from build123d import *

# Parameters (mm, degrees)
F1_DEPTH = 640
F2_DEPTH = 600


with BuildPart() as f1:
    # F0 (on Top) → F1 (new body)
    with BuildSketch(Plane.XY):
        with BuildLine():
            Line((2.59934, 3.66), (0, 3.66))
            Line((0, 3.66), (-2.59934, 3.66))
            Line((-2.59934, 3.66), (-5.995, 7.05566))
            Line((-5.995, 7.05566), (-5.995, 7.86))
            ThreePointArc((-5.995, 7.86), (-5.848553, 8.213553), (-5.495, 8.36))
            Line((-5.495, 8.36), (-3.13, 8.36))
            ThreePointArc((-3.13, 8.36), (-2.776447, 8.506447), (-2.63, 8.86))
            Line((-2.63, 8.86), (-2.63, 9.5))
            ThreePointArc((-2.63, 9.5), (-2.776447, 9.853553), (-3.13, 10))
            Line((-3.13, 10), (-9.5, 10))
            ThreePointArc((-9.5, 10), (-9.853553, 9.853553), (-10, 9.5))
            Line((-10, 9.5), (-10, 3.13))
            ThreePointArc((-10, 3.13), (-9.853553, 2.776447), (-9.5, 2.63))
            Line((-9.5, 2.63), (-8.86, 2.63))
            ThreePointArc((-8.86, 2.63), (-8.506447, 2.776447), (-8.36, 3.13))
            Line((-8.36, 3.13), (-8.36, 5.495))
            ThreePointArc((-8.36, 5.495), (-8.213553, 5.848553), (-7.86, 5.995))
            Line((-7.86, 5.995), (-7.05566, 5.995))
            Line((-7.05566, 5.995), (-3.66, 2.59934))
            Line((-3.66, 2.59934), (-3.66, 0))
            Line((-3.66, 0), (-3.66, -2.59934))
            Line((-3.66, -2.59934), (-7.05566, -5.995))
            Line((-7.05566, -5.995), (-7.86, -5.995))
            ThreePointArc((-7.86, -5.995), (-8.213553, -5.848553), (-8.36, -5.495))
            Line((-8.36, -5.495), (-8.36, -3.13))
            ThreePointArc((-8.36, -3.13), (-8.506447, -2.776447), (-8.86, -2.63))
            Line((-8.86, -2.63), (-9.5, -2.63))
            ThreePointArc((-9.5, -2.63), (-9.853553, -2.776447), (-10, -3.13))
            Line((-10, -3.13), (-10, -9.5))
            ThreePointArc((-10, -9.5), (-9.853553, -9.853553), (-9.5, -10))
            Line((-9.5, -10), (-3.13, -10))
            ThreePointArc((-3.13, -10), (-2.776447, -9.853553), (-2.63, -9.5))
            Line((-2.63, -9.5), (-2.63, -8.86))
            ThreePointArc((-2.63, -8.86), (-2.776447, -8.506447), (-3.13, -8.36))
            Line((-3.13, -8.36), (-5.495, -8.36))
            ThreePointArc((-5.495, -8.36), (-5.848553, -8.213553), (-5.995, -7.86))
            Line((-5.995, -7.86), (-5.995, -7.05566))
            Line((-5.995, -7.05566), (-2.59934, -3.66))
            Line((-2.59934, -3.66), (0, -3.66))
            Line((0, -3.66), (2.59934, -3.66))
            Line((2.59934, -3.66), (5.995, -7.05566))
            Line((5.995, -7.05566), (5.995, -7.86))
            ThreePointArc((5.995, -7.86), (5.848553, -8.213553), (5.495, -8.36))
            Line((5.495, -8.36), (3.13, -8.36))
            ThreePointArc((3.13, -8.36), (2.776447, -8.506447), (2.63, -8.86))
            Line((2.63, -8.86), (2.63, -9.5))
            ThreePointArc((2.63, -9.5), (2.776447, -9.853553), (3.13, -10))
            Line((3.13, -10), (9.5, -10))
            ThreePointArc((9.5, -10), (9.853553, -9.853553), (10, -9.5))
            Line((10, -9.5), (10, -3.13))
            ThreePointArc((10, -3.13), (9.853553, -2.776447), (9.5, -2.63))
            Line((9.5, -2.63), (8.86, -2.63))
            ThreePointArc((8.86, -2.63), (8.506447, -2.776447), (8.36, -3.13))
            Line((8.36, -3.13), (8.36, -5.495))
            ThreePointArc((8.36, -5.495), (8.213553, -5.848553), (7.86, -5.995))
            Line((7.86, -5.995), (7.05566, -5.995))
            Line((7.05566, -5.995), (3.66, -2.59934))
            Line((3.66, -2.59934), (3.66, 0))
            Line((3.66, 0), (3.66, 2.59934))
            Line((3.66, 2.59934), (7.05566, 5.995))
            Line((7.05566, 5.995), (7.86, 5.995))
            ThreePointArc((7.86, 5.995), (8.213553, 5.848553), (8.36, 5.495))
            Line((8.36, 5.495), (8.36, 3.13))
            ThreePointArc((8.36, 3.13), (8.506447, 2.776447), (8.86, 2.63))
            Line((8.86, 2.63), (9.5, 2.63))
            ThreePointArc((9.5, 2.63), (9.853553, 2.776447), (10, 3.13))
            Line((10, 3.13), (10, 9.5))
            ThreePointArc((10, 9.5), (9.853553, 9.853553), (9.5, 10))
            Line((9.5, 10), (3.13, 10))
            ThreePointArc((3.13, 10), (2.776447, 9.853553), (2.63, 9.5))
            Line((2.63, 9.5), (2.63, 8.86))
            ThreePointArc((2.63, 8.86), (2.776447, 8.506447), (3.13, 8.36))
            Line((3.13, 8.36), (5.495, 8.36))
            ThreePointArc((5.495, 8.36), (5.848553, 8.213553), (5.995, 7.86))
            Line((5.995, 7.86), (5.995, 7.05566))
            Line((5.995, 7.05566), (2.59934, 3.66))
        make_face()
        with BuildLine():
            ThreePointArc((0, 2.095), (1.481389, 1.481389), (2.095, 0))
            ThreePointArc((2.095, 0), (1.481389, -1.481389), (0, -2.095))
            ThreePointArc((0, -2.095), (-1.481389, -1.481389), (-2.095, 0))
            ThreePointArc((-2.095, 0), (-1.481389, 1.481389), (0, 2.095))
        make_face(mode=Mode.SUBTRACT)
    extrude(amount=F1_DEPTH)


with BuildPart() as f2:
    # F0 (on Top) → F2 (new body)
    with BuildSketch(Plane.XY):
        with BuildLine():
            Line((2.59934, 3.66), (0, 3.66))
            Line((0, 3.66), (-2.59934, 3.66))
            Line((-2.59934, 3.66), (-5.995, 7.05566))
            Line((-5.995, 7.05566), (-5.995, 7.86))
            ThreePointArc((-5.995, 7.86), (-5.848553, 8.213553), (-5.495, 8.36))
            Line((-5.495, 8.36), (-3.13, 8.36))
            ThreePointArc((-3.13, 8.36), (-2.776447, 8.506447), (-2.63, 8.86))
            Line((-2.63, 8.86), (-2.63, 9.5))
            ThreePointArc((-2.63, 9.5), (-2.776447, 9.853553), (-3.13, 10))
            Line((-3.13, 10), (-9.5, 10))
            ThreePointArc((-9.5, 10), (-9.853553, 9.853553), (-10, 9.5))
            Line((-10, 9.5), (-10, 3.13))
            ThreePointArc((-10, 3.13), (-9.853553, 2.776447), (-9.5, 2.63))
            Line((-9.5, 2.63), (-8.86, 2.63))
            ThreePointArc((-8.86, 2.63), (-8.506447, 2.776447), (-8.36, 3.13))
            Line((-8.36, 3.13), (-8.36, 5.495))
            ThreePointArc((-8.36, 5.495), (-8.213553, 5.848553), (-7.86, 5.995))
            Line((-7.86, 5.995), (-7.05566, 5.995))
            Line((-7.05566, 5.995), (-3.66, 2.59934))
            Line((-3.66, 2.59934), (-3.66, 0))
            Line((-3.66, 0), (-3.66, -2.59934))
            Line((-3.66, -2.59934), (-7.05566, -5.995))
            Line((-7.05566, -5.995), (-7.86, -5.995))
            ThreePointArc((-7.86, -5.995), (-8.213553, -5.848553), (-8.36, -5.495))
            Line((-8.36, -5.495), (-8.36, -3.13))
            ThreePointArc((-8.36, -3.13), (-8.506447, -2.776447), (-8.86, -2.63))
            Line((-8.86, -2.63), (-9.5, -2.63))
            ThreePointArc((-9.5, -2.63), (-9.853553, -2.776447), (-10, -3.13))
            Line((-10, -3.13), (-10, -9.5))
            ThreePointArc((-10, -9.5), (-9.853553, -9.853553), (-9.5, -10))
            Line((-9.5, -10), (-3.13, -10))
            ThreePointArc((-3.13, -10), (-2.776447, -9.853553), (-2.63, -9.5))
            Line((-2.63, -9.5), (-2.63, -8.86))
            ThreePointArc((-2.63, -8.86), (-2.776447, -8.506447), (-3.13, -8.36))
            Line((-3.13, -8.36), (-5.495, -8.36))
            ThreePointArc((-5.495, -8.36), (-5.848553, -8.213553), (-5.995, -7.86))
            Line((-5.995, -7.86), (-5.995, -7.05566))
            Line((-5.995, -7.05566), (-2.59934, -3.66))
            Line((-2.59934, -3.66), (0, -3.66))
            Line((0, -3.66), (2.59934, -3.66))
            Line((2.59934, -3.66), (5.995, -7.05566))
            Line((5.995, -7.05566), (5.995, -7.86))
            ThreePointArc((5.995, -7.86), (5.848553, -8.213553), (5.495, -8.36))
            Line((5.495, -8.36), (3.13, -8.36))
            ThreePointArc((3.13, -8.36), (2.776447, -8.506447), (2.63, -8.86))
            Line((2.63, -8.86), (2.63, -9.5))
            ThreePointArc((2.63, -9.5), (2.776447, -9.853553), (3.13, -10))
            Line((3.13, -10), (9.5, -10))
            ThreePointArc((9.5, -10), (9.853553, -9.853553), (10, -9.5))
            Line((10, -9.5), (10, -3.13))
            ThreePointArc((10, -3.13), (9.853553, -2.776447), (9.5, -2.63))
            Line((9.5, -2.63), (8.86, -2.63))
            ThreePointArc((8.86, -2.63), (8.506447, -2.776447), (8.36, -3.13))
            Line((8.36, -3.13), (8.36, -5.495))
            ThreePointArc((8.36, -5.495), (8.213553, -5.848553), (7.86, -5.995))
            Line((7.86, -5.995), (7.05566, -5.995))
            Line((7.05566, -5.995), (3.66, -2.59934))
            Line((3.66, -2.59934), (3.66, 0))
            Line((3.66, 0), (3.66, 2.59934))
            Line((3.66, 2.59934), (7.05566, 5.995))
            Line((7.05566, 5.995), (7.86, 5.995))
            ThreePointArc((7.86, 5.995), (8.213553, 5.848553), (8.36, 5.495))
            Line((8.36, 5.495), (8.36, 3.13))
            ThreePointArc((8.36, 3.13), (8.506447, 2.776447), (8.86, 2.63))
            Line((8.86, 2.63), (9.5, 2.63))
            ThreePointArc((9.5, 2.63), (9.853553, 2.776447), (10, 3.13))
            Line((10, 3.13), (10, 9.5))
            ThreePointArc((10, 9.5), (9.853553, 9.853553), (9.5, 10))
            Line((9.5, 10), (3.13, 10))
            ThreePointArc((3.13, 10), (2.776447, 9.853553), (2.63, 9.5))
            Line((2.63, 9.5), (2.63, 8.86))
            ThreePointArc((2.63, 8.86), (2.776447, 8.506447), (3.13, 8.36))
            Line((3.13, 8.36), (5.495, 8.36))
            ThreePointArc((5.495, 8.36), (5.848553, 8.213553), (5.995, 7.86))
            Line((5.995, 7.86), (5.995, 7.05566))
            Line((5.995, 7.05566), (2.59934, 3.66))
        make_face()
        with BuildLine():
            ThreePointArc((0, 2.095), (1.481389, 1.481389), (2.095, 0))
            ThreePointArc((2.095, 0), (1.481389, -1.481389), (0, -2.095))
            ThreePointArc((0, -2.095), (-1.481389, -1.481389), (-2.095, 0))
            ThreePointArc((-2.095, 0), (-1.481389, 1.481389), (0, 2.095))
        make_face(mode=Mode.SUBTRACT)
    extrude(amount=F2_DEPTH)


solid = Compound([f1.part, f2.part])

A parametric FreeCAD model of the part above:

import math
import FreeCAD as App
import Part
import Sketcher
from FreeCAD import Vector

doc = App.newDocument("Part")
body = doc.addObject("PartDesign::Body", "Body")

# Sketch on XY plane
sketch1 = doc.addObject("Sketcher::SketchObject", "Sketch")
body.addObject(sketch1)
sketch1.AttachmentSupport = (doc.XY_Plane, [""])
sketch1.MapMode = "FlatFace"
sketch1.addGeometry([
    Part.LineSegment(Vector(2.6, 3.7, 0), Vector(-2.6, 3.7, 0)),  # 0
    Part.LineSegment(Vector(-2.6, 3.7, 0), Vector(-6, 7.1, 0)),  # 1
    Part.LineSegment(Vector(-6, 7.1, 0), Vector(-6, 7.9, 0)),  # 2
    Part.ArcOfCircle(Part.Circle(Vector(-5.5, 7.9, 0), Vector(0, 0, 1), 0.5), math.radians(90), math.radians(180)),  # 3
    Part.LineSegment(Vector(-5.5, 8.4, 0), Vector(-3.1, 8.4, 0)),  # 4
    Part.ArcOfCircle(Part.Circle(Vector(-3.1, 8.9, 0), Vector(0, 0, 1), 0.5), math.radians(-90), math.radians(0)),  # 5
    Part.LineSegment(Vector(-2.6, 8.9, 0), Vector(-2.6, 9.5, 0)),  # 6
    Part.ArcOfCircle(Part.Circle(Vector(-3.1, 9.5, 0), Vector(0, 0, 1), 0.5), math.radians(0), math.radians(90)),  # 7
    Part.LineSegment(Vector(-3.1, 10, 0), Vector(-9.5, 10, 0)),  # 8
    Part.ArcOfCircle(Part.Circle(Vector(-9.5, 9.5, 0), Vector(0, 0, 1), 0.5), math.radians(90), math.radians(180)),  # 9
    Part.LineSegment(Vector(-10, 9.5, 0), Vector(-10, 3.1, 0)),  # 10
    Part.ArcOfCircle(Part.Circle(Vector(-9.5, 3.1, 0), Vector(0, 0, 1), 0.5), math.radians(-180), math.radians(-90)),  # 11
    Part.LineSegment(Vector(-9.5, 2.6, 0), Vector(-8.9, 2.6, 0)),  # 12
    Part.ArcOfCircle(Part.Circle(Vector(-8.9, 3.1, 0), Vector(0, 0, 1), 0.5), math.radians(-90), math.radians(0)),  # 13
    Part.LineSegment(Vector(-8.4, 3.1, 0), Vector(-8.4, 5.5, 0)),  # 14
    Part.ArcOfCircle(Part.Circle(Vector(-7.9, 5.5, 0), Vector(0, 0, 1), 0.5), math.radians(90), math.radians(180)),  # 15
    Part.LineSegment(Vector(-7.9, 6, 0), Vector(-7.1, 6, 0)),  # 16
    Part.LineSegment(Vector(-7.1, 6, 0), Vector(-3.7, 2.6, 0)),  # 17
    Part.LineSegment(Vector(-3.7, 2.6, 0), Vector(-3.7, -2.6, 0)),  # 18
    Part.LineSegment(Vector(-3.7, -2.6, 0), Vector(-7.1, -6, 0)),  # 19
    Part.LineSegment(Vector(-7.1, -6, 0), Vector(-7.9, -6, 0)),  # 20
    Part.ArcOfCircle(Part.Circle(Vector(-7.9, -5.5, 0), Vector(0, 0, 1), 0.5), math.radians(-180), math.radians(-90)),  # 21
    Part.LineSegment(Vector(-8.4, -5.5, 0), Vector(-8.4, -3.1, 0)),  # 22
    Part.ArcOfCircle(Part.Circle(Vector(-8.9, -3.1, 0), Vector(0, 0, 1), 0.5), math.radians(0), math.radians(90)),  # 23
    Part.LineSegment(Vector(-8.9, -2.6, 0), Vector(-9.5, -2.6, 0)),  # 24
    Part.ArcOfCircle(Part.Circle(Vector(-9.5, -3.1, 0), Vector(0, 0, 1), 0.5), math.radians(90), math.radians(180)),  # 25
    Part.LineSegment(Vector(-10, -3.1, 0), Vector(-10, -9.5, 0)),  # 26
    Part.ArcOfCircle(Part.Circle(Vector(-9.5, -9.5, 0), Vector(0, 0, 1), 0.5), math.radians(-180), math.radians(-90)),  # 27
    Part.LineSegment(Vector(-9.5, -10, 0), Vector(-3.1, -10, 0)),  # 28
    Part.ArcOfCircle(Part.Circle(Vector(-3.1, -9.5, 0), Vector(0, 0, 1), 0.5), math.radians(-90), math.radians(0)),  # 29
    Part.LineSegment(Vector(-2.6, -9.5, 0), Vector(-2.6, -8.9, 0)),  # 30
    Part.ArcOfCircle(Part.Circle(Vector(-3.1, -8.9, 0), Vector(0, 0, 1), 0.5), math.radians(0), math.radians(90)),  # 31
    Part.LineSegment(Vector(-3.1, -8.4, 0), Vector(-5.5, -8.4, 0)),  # 32
    Part.ArcOfCircle(Part.Circle(Vector(-5.5, -7.9, 0), Vector(0, 0, 1), 0.5), math.radians(-180), math.radians(-90)),  # 33
    Part.LineSegment(Vector(-6, -7.9, 0), Vector(-6, -7.1, 0)),  # 34
    Part.LineSegment(Vector(-6, -7.1, 0), Vector(-2.6, -3.7, 0)),  # 35
    Part.LineSegment(Vector(-2.6, -3.7, 0), Vector(2.6, -3.7, 0)),  # 36
    Part.LineSegment(Vector(2.6, -3.7, 0), Vector(6, -7.1, 0)),  # 37
    Part.LineSegment(Vector(6, -7.1, 0), Vector(6, -7.9, 0)),  # 38
    Part.ArcOfCircle(Part.Circle(Vector(5.5, -7.9, 0), Vector(0, 0, 1), 0.5), math.radians(-90), math.radians(0)),  # 39
    Part.LineSegment(Vector(5.5, -8.4, 0), Vector(3.1, -8.4, 0)),  # 40
    Part.ArcOfCircle(Part.Circle(Vector(3.1, -8.9, 0), Vector(0, 0, 1), 0.5), math.radians(90), math.radians(180)),  # 41
    Part.LineSegment(Vector(2.6, -8.9, 0), Vector(2.6, -9.5, 0)),  # 42
    Part.ArcOfCircle(Part.Circle(Vector(3.1, -9.5, 0), Vector(0, 0, 1), 0.5), math.radians(-180), math.radians(-90)),  # 43
    Part.LineSegment(Vector(3.1, -10, 0), Vector(9.5, -10, 0)),  # 44
    Part.ArcOfCircle(Part.Circle(Vector(9.5, -9.5, 0), Vector(0, 0, 1), 0.5), math.radians(-90), math.radians(0)),  # 45
    Part.LineSegment(Vector(10, -9.5, 0), Vector(10, -3.1, 0)),  # 46
    Part.ArcOfCircle(Part.Circle(Vector(9.5, -3.1, 0), Vector(0, 0, 1), 0.5), math.radians(0), math.radians(90)),  # 47
    Part.LineSegment(Vector(9.5, -2.6, 0), Vector(8.9, -2.6, 0)),  # 48
    Part.ArcOfCircle(Part.Circle(Vector(8.9, -3.1, 0), Vector(0, 0, 1), 0.5), math.radians(90), math.radians(180)),  # 49
    Part.LineSegment(Vector(8.4, -3.1, 0), Vector(8.4, -5.5, 0)),  # 50
    Part.ArcOfCircle(Part.Circle(Vector(7.9, -5.5, 0), Vector(0, 0, 1), 0.5), math.radians(-90), math.radians(0)),  # 51
    Part.LineSegment(Vector(7.9, -6, 0), Vector(7.1, -6, 0)),  # 52
    Part.LineSegment(Vector(7.1, -6, 0), Vector(3.7, -2.6, 0)),  # 53
    Part.LineSegment(Vector(3.7, -2.6, 0), Vector(3.7, 2.6, 0)),  # 54
    Part.LineSegment(Vector(3.7, 2.6, 0), Vector(7.1, 6, 0)),  # 55
    Part.LineSegment(Vector(7.1, 6, 0), Vector(7.9, 6, 0)),  # 56
    Part.ArcOfCircle(Part.Circle(Vector(7.9, 5.5, 0), Vector(0, 0, 1), 0.5), math.radians(0), math.radians(90)),  # 57
    Part.LineSegment(Vector(8.4, 5.5, 0), Vector(8.4, 3.1, 0)),  # 58
    Part.ArcOfCircle(Part.Circle(Vector(8.9, 3.1, 0), Vector(0, 0, 1), 0.5), math.radians(-180), math.radians(-90)),  # 59
    Part.LineSegment(Vector(8.9, 2.6, 0), Vector(9.5, 2.6, 0)),  # 60
    Part.ArcOfCircle(Part.Circle(Vector(9.5, 3.1, 0), Vector(0, 0, 1), 0.5), math.radians(-90), math.radians(0)),  # 61
    Part.LineSegment(Vector(10, 3.1, 0), Vector(10, 9.5, 0)),  # 62
    Part.ArcOfCircle(Part.Circle(Vector(9.5, 9.5, 0), Vector(0, 0, 1), 0.5), math.radians(0), math.radians(90)),  # 63
    Part.LineSegment(Vector(9.5, 10, 0), Vector(3.1, 10, 0)),  # 64
    Part.ArcOfCircle(Part.Circle(Vector(3.1, 9.5, 0), Vector(0, 0, 1), 0.5), math.radians(90), math.radians(180)),  # 65
    Part.LineSegment(Vector(2.6, 9.5, 0), Vector(2.6, 8.9, 0)),  # 66
    Part.ArcOfCircle(Part.Circle(Vector(3.1, 8.9, 0), Vector(0, 0, 1), 0.5), math.radians(-180), math.radians(-90)),  # 67
    Part.LineSegment(Vector(3.1, 8.4, 0), Vector(5.5, 8.4, 0)),  # 68
    Part.ArcOfCircle(Part.Circle(Vector(5.5, 7.9, 0), Vector(0, 0, 1), 0.5), math.radians(0), math.radians(90)),  # 69
    Part.LineSegment(Vector(6, 7.9, 0), Vector(6, 7.1, 0)),  # 70
    Part.LineSegment(Vector(6, 7.1, 0), Vector(2.6, 3.7, 0)),  # 71
    Part.ArcOfCircle(Part.Circle(Vector(0, 0, 0), Vector(0, 0, 1), 2.1), math.radians(90), math.radians(180)),  # 72
    Part.ArcOfCircle(Part.Circle(Vector(0, 0, 0), Vector(0, 0, 1), 2.1), math.radians(0), math.radians(90)),  # 73
    Part.ArcOfCircle(Part.Circle(Vector(0, 0, 0), Vector(0, 0, 1), 2.1), math.radians(-90), math.radians(0)),  # 74
    Part.ArcOfCircle(Part.Circle(Vector(0, 0, 0), Vector(0, 0, 1), 2.1), math.radians(180), math.radians(270)),  # 75
], False)
sketch1.addConstraint([
    Sketcher.Constraint("Coincident", 0, 2, 1, 1),
    Sketcher.Constraint("Coincident", 1, 2, 2, 1),
    Sketcher.Constraint("Coincident", 2, 2, 3, 2),
    Sketcher.Constraint("Coincident", 3, 1, 4, 1),
    Sketcher.Constraint("Coincident", 4, 2, 5, 1),
    Sketcher.Constraint("Coincident", 5, 2, 6, 1),
    Sketcher.Constraint("Coincident", 6, 2, 7, 1),
    Sketcher.Constraint("Coincident", 7, 2, 8, 1),
    Sketcher.Constraint("Coincident", 8, 2, 9, 1),
    Sketcher.Constraint("Coincident", 9, 2, 10, 1),
    Sketcher.Constraint("Coincident", 10, 2, 11, 1),
    Sketcher.Constraint("Coincident", 11, 2, 12, 1),
    Sketcher.Constraint("Coincident", 12, 2, 13, 1),
    Sketcher.Constraint("Coincident", 13, 2, 14, 1),
    Sketcher.Constraint("Coincident", 14, 2, 15, 2),
    Sketcher.Constraint("Coincident", 15, 1, 16, 1),
    Sketcher.Constraint("Coincident", 16, 2, 17, 1),
    Sketcher.Constraint("Coincident", 17, 2, 18, 1),
    Sketcher.Constraint("Coincident", 18, 2, 19, 1),
    Sketcher.Constraint("Coincident", 19, 2, 20, 1),
    Sketcher.Constraint("Coincident", 20, 2, 21, 2),
    Sketcher.Constraint("Coincident", 21, 1, 22, 1),
    Sketcher.Constraint("Coincident", 22, 2, 23, 1),
    Sketcher.Constraint("Coincident", 23, 2, 24, 1),
    Sketcher.Constraint("Coincident", 24, 2, 25, 1),
    Sketcher.Constraint("Coincident", 25, 2, 26, 1),
    Sketcher.Constraint("Coincident", 26, 2, 27, 1),
    Sketcher.Constraint("Coincident", 27, 2, 28, 1),
    Sketcher.Constraint("Coincident", 28, 2, 29, 1),
    Sketcher.Constraint("Coincident", 29, 2, 30, 1),
    Sketcher.Constraint("Coincident", 30, 2, 31, 1),
    Sketcher.Constraint("Coincident", 31, 2, 32, 1),
    Sketcher.Constraint("Coincident", 32, 2, 33, 2),
    Sketcher.Constraint("Coincident", 33, 1, 34, 1),
    Sketcher.Constraint("Coincident", 34, 2, 35, 1),
    Sketcher.Constraint("Coincident", 35, 2, 36, 1),
    Sketcher.Constraint("Coincident", 36, 2, 37, 1),
    Sketcher.Constraint("Coincident", 37, 2, 38, 1),
    Sketcher.Constraint("Coincident", 38, 2, 39, 2),
    Sketcher.Constraint("Coincident", 39, 1, 40, 1),
    Sketcher.Constraint("Coincident", 40, 2, 41, 1),
    Sketcher.Constraint("Coincident", 41, 2, 42, 1),
    Sketcher.Constraint("Coincident", 42, 2, 43, 1),
    Sketcher.Constraint("Coincident", 43, 2, 44, 1),
    Sketcher.Constraint("Coincident", 44, 2, 45, 1),
    Sketcher.Constraint("Coincident", 45, 2, 46, 1),
    Sketcher.Constraint("Coincident", 46, 2, 47, 1),
    Sketcher.Constraint("Coincident", 47, 2, 48, 1),
    Sketcher.Constraint("Coincident", 48, 2, 49, 1),
    Sketcher.Constraint("Coincident", 49, 2, 50, 1),
    Sketcher.Constraint("Coincident", 50, 2, 51, 2),
    Sketcher.Constraint("Coincident", 51, 1, 52, 1),
    Sketcher.Constraint("Coincident", 52, 2, 53, 1),
    Sketcher.Constraint("Coincident", 53, 2, 54, 1),
    Sketcher.Constraint("Coincident", 54, 2, 55, 1),
    Sketcher.Constraint("Coincident", 55, 2, 56, 1),
    Sketcher.Constraint("Coincident", 56, 2, 57, 2),
    Sketcher.Constraint("Coincident", 57, 1, 58, 1),
    Sketcher.Constraint("Coincident", 58, 2, 59, 1),
    Sketcher.Constraint("Coincident", 59, 2, 60, 1),
    Sketcher.Constraint("Coincident", 60, 2, 61, 1),
    Sketcher.Constraint("Coincident", 61, 2, 62, 1),
    Sketcher.Constraint("Coincident", 62, 2, 63, 1),
    Sketcher.Constraint("Coincident", 63, 2, 64, 1),
    Sketcher.Constraint("Coincident", 64, 2, 65, 1),
    Sketcher.Constraint("Coincident", 65, 2, 66, 1),
    Sketcher.Constraint("Coincident", 66, 2, 67, 1),
    Sketcher.Constraint("Coincident", 67, 2, 68, 1),
    Sketcher.Constraint("Coincident", 68, 2, 69, 2),
    Sketcher.Constraint("Coincident", 69, 1, 70, 1),
    Sketcher.Constraint("Coincident", 70, 2, 71, 1),
    Sketcher.Constraint("Coincident", 71, 2, 0, 1),
    Sketcher.Constraint("Tangent", 72, 1, 73, 2),
    Sketcher.Constraint("Tangent", 73, 1, 74, 2),
    Sketcher.Constraint("Tangent", 74, 1, 75, 2),
    Sketcher.Constraint("Tangent", 75, 1, 72, 2),
    Sketcher.Constraint("Horizontal", 0),
    Sketcher.Constraint("Vertical", 2),
    Sketcher.Constraint("Horizontal", 4),
    Sketcher.Constraint("Vertical", 6),
    Sketcher.Constraint("Horizontal", 8),
    Sketcher.Constraint("Vertical", 10),
    Sketcher.Constraint("Horizontal", 12),
    Sketcher.Constraint("Vertical", 14),
    Sketcher.Constraint("Horizontal", 16),
    Sketcher.Constraint("Vertical", 18),
    Sketcher.Constraint("Horizontal", 20),
    Sketcher.Constraint("Vertical", 22),
    Sketcher.Constraint("Horizontal", 24),
    Sketcher.Constraint("Vertical", 26),
    Sketcher.Constraint("Horizontal", 28),
    Sketcher.Constraint("Vertical", 30),
    Sketcher.Constraint("Horizontal", 32),
    Sketcher.Constraint("Vertical", 34),
    Sketcher.Constraint("Horizontal", 36),
    Sketcher.Constraint("Vertical", 38),
    Sketcher.Constraint("Horizontal", 40),
    Sketcher.Constraint("Vertical", 42),
    Sketcher.Constraint("Horizontal", 44),
    Sketcher.Constraint("Vertical", 46),
    Sketcher.Constraint("Horizontal", 48),
    Sketcher.Constraint("Vertical", 50),
    Sketcher.Constraint("Horizontal", 52),
    Sketcher.Constraint("Vertical", 54),
    Sketcher.Constraint("Horizontal", 56),
    Sketcher.Constraint("Vertical", 58),
    Sketcher.Constraint("Horizontal", 60),
    Sketcher.Constraint("Vertical", 62),
    Sketcher.Constraint("Horizontal", 64),
    Sketcher.Constraint("Vertical", 66),
    Sketcher.Constraint("Horizontal", 68),
    Sketcher.Constraint("Vertical", 70),
    Sketcher.Constraint("Coincident", 72, 3, -1, 1),
    Sketcher.Constraint("Equal", 3, 5),
    Sketcher.Constraint("Equal", 5, 7),
    Sketcher.Constraint("Equal", 7, 9),
    Sketcher.Constraint("Equal", 9, 11),
    Sketcher.Constraint("Equal", 11, 13),
    Sketcher.Constraint("Equal", 13, 15),
    Sketcher.Constraint("Equal", 15, 21),
    Sketcher.Constraint("Equal", 21, 23),
    Sketcher.Constraint("Equal", 23, 25),
    Sketcher.Constraint("Equal", 25, 27),
    Sketcher.Constraint("Equal", 27, 29),
    Sketcher.Constraint("Equal", 29, 31),
    Sketcher.Constraint("Equal", 31, 33),
    Sketcher.Constraint("Equal", 33, 39),
    Sketcher.Constraint("Equal", 39, 41),
    Sketcher.Constraint("Equal", 41, 43),
    Sketcher.Constraint("Equal", 43, 45),
    Sketcher.Constraint("Equal", 45, 47),
    Sketcher.Constraint("Equal", 47, 49),
    Sketcher.Constraint("Equal", 49, 51),
    Sketcher.Constraint("Equal", 51, 57),
    Sketcher.Constraint("Equal", 57, 59),
    Sketcher.Constraint("Equal", 59, 61),
    Sketcher.Constraint("Equal", 61, 63),
    Sketcher.Constraint("Equal", 63, 65),
    Sketcher.Constraint("Equal", 65, 67),
    Sketcher.Constraint("Equal", 67, 69),
    Sketcher.Constraint("Equal", 72, 73),
    Sketcher.Constraint("Symmetric", 3, 3, 39, 3, -1, 1),
    Sketcher.Constraint("Symmetric", 7, 3, 43, 3, -1, 1),
    Sketcher.Constraint("Symmetric", 11, 3, 47, 3, -1, 1),
    Sketcher.Constraint("Symmetric", 15, 3, 51, 3, -1, 1),
    Sketcher.Constraint("Symmetric", 21, 3, 57, 3, -1, 1),
    Sketcher.Constraint("Symmetric", 25, 3, 61, 3, -1, 1),
    Sketcher.Constraint("Symmetric", 29, 3, 65, 3, -1, 1),
    Sketcher.Constraint("Symmetric", 33, 3, 69, 3, -1, 1),
    Sketcher.Constraint("Symmetric", 0, 2, 36, 2, -1, 1),
    Sketcher.Constraint("Symmetric", 17, 2, 53, 2, -1, 1),
    Sketcher.Constraint("Symmetric", 33, 3, 39, 3, -2),
    Sketcher.Constraint("Symmetric", 29, 3, 43, 3, -2),
    Sketcher.Constraint("Symmetric", 25, 3, 47, 3, -2),
    Sketcher.Constraint("Symmetric", 21, 3, 51, 3, -2),
    Sketcher.Constraint("PointOnObject", 72, 1, -2),
    Sketcher.Constraint("PointOnObject", 73, 1, -1),
    Sketcher.Constraint("PointOnObject", 74, 1, -2),
    Sketcher.Constraint("PointOnObject", 75, 1, -1),
    Sketcher.Constraint("Parallel", 1, 17),
    Sketcher.Constraint("Perpendicular", 17, 19),
    Sketcher.Constraint("Parallel", 19, 35),
    Sketcher.Constraint("Perpendicular", 35, 37),
    Sketcher.Constraint("Parallel", 37, 53),
    Sketcher.Constraint("Perpendicular", 53, 55),
    Sketcher.Constraint("Parallel", 55, 71),
    Sketcher.Constraint("Horizontal", 69, 3, 2, 2),
    Sketcher.Constraint("Horizontal", 67, 3, 5, 2),
    Sketcher.Constraint("Horizontal", 65, 3, 6, 2),
    Sketcher.Constraint("Horizontal", 6, 2, 9, 2),
    Sketcher.Constraint("Horizontal", 61, 3, 10, 2),
    Sketcher.Constraint("Horizontal", 10, 2, 13, 2),
    Sketcher.Constraint("Horizontal", 57, 3, 14, 2),
    Sketcher.Constraint("Horizontal", 51, 3, 21, 1),
    Sketcher.Constraint("Horizontal", 49, 3, 22, 2),
    Sketcher.Constraint("Horizontal", 22, 2, 25, 2),
    Sketcher.Constraint("Horizontal", 45, 3, 26, 2),
    Sketcher.Constraint("Horizontal", 26, 2, 29, 2),
    Sketcher.Constraint("Horizontal", 41, 3, 30, 2),
    Sketcher.Constraint("Horizontal", 39, 3, 33, 1),
    Sketcher.Constraint("Horizontal", 34, 2, 37, 2),
    Sketcher.Constraint("Horizontal", 33, 1, 38, 2),
    Sketcher.Constraint("Horizontal", 30, 2, 41, 2),
    Sketcher.Constraint("Horizontal", 29, 2, 42, 2),
    Sketcher.Constraint("Horizontal", 42, 2, 45, 2),
    Sketcher.Constraint("Horizontal", 25, 2, 46, 2),
    Sketcher.Constraint("Horizontal", 46, 2, 49, 2),
    Sketcher.Constraint("Horizontal", 21, 1, 50, 2),
    Sketcher.Constraint("Horizontal", 18, 2, 53, 2),
    Sketcher.Constraint("Horizontal", 17, 2, 54, 2),
    Sketcher.Constraint("Horizontal", 14, 2, 57, 1),
    Sketcher.Constraint("Horizontal", 13, 2, 58, 2),
    Sketcher.Constraint("Horizontal", 58, 2, 61, 2),
    Sketcher.Constraint("Horizontal", 9, 2, 62, 2),
    Sketcher.Constraint("Horizontal", 62, 2, 65, 2),
    Sketcher.Constraint("Horizontal", 5, 2, 66, 2),
    Sketcher.Constraint("Horizontal", 2, 2, 69, 1),
    Sketcher.Constraint("Horizontal", 1, 2, 70, 2),
    Sketcher.Constraint("Vertical", 33, 3, 3, 1),
    Sketcher.Constraint("Vertical", 31, 3, 4, 2),
    Sketcher.Constraint("Vertical", 4, 2, 7, 2),
    Sketcher.Constraint("Vertical", 27, 3, 8, 2),
    Sketcher.Constraint("Vertical", 8, 2, 11, 2),
    Sketcher.Constraint("Vertical", 23, 3, 12, 2),
    Sketcher.Constraint("Vertical", 21, 3, 15, 1),
    Sketcher.Constraint("Vertical", 16, 2, 19, 2),
    Sketcher.Constraint("Vertical", 15, 1, 20, 2),
    Sketcher.Constraint("Vertical", 12, 2, 23, 2),
    Sketcher.Constraint("Vertical", 11, 2, 24, 2),
    Sketcher.Constraint("Vertical", 24, 2, 27, 2),
    Sketcher.Constraint("Vertical", 7, 2, 28, 2),
    Sketcher.Constraint("Vertical", 28, 2, 31, 2),
    Sketcher.Constraint("Vertical", 3, 1, 32, 2),
    Sketcher.Constraint("Vertical", 69, 3, 39, 1),
    Sketcher.Constraint("Vertical", 67, 3, 40, 2),
    Sketcher.Constraint("Vertical", 40, 2, 43, 2),
    Sketcher.Constraint("Vertical", 63, 3, 44, 2),
    Sketcher.Constraint("Vertical", 44, 2, 47, 2),
    Sketcher.Constraint("Vertical", 59, 3, 48, 2),
    Sketcher.Constraint("Vertical", 57, 3, 51, 1),
    Sketcher.Constraint("Vertical", 51, 1, 56, 2),
    Sketcher.Constraint("Vertical", 48, 2, 59, 2),
    Sketcher.Constraint("Vertical", 47, 2, 60, 2),
    Sketcher.Constraint("Vertical", 60, 2, 63, 2),
    Sketcher.Constraint("Vertical", 43, 2, 64, 2),
    Sketcher.Constraint("Vertical", 64, 2, 67, 2),
    Sketcher.Constraint("Vertical", 39, 1, 68, 2),
    Sketcher.Constraint("Equal", 56, 2),
    Sketcher.Constraint("Equal", 60, 6),
    Sketcher.Constraint("Equal", 64, 10),
    Sketcher.Constraint("Equal", 68, 14),
    Sketcher.Constraint("Equal", 36, 18),
    Sketcher.Constraint("Equal", 1, 17),
    Sketcher.Constraint("Radius", 3, 0.500001),
    Sketcher.Constraint("DistanceY", -1, 1, 7, 2, 10.0),
    Sketcher.Constraint("Radius", 72, 2.094999),
    Sketcher.Constraint("DistanceX", 8, 2, 8, 1, 6.37),
    Sketcher.Constraint("DistanceX", 12, 1, 12, 2, 0.64),
    Sketcher.Constraint("DistanceX", 4, 1, 4, 2, 2.365),
    Sketcher.Constraint("DistanceY", -1, 1, 0, 2, 3.66),
    Sketcher.Constraint("DistanceX", 0, 2, 0, 1, 5.19868),
])
pad1 = doc.addObject("PartDesign::Pad", "Pad")
body.addObject(pad1)
pad1.Profile = sketch1
pad1.Length = 640
body2 = doc.addObject("PartDesign::Body", "Body001")

# Sketch on XY plane
sketch2 = doc.addObject("Sketcher::SketchObject", "Sketch001")
body2.addObject(sketch2)
sketch2.AttachmentSupport = (doc.getObject("XY_Plane001"), [""])
sketch2.MapMode = "FlatFace"
sketch2.addGeometry([
    Part.LineSegment(Vector(2.6, 3.7, 0), Vector(-2.6, 3.7, 0)),  # 0
    Part.LineSegment(Vector(-2.6, 3.7, 0), Vector(-6, 7.1, 0)),  # 1
    Part.LineSegment(Vector(-6, 7.1, 0), Vector(-6, 7.9, 0)),  # 2
    Part.ArcOfCircle(Part.Circle(Vector(-5.5, 7.9, 0), Vector(0, 0, 1), 0.5), math.radians(90), math.radians(180)),  # 3
    Part.LineSegment(Vector(-5.5, 8.4, 0), Vector(-3.1, 8.4, 0)),  # 4
    Part.ArcOfCircle(Part.Circle(Vector(-3.1, 8.9, 0), Vector(0, 0, 1), 0.5), math.radians(-90), math.radians(0)),  # 5
    Part.LineSegment(Vector(-2.6, 8.9, 0), Vector(-2.6, 9.5, 0)),  # 6
    Part.ArcOfCircle(Part.Circle(Vector(-3.1, 9.5, 0), Vector(0, 0, 1), 0.5), math.radians(0), math.radians(90)),  # 7
    Part.LineSegment(Vector(-3.1, 10, 0), Vector(-9.5, 10, 0)),  # 8
    Part.ArcOfCircle(Part.Circle(Vector(-9.5, 9.5, 0), Vector(0, 0, 1), 0.5), math.radians(90), math.radians(180)),  # 9
    Part.LineSegment(Vector(-10, 9.5, 0), Vector(-10, 3.1, 0)),  # 10
    Part.ArcOfCircle(Part.Circle(Vector(-9.5, 3.1, 0), Vector(0, 0, 1), 0.5), math.radians(-180), math.radians(-90)),  # 11
    Part.LineSegment(Vector(-9.5, 2.6, 0), Vector(-8.9, 2.6, 0)),  # 12
    Part.ArcOfCircle(Part.Circle(Vector(-8.9, 3.1, 0), Vector(0, 0, 1), 0.5), math.radians(-90), math.radians(0)),  # 13
    Part.LineSegment(Vector(-8.4, 3.1, 0), Vector(-8.4, 5.5, 0)),  # 14
    Part.ArcOfCircle(Part.Circle(Vector(-7.9, 5.5, 0), Vector(0, 0, 1), 0.5), math.radians(90), math.radians(180)),  # 15
    Part.LineSegment(Vector(-7.9, 6, 0), Vector(-7.1, 6, 0)),  # 16
    Part.LineSegment(Vector(-7.1, 6, 0), Vector(-3.7, 2.6, 0)),  # 17
    Part.LineSegment(Vector(-3.7, 2.6, 0), Vector(-3.7, -2.6, 0)),  # 18
    Part.LineSegment(Vector(-3.7, -2.6, 0), Vector(-7.1, -6, 0)),  # 19
    Part.LineSegment(Vector(-7.1, -6, 0), Vector(-7.9, -6, 0)),  # 20
    Part.ArcOfCircle(Part.Circle(Vector(-7.9, -5.5, 0), Vector(0, 0, 1), 0.5), math.radians(-180), math.radians(-90)),  # 21
    Part.LineSegment(Vector(-8.4, -5.5, 0), Vector(-8.4, -3.1, 0)),  # 22
    Part.ArcOfCircle(Part.Circle(Vector(-8.9, -3.1, 0), Vector(0, 0, 1), 0.5), math.radians(0), math.radians(90)),  # 23
    Part.LineSegment(Vector(-8.9, -2.6, 0), Vector(-9.5, -2.6, 0)),  # 24
    Part.ArcOfCircle(Part.Circle(Vector(-9.5, -3.1, 0), Vector(0, 0, 1), 0.5), math.radians(90), math.radians(180)),  # 25
    Part.LineSegment(Vector(-10, -3.1, 0), Vector(-10, -9.5, 0)),  # 26
    Part.ArcOfCircle(Part.Circle(Vector(-9.5, -9.5, 0), Vector(0, 0, 1), 0.5), math.radians(-180), math.radians(-90)),  # 27
    Part.LineSegment(Vector(-9.5, -10, 0), Vector(-3.1, -10, 0)),  # 28
    Part.ArcOfCircle(Part.Circle(Vector(-3.1, -9.5, 0), Vector(0, 0, 1), 0.5), math.radians(-90), math.radians(0)),  # 29
    Part.LineSegment(Vector(-2.6, -9.5, 0), Vector(-2.6, -8.9, 0)),  # 30
    Part.ArcOfCircle(Part.Circle(Vector(-3.1, -8.9, 0), Vector(0, 0, 1), 0.5), math.radians(0), math.radians(90)),  # 31
    Part.LineSegment(Vector(-3.1, -8.4, 0), Vector(-5.5, -8.4, 0)),  # 32
    Part.ArcOfCircle(Part.Circle(Vector(-5.5, -7.9, 0), Vector(0, 0, 1), 0.5), math.radians(-180), math.radians(-90)),  # 33
    Part.LineSegment(Vector(-6, -7.9, 0), Vector(-6, -7.1, 0)),  # 34
    Part.LineSegment(Vector(-6, -7.1, 0), Vector(-2.6, -3.7, 0)),  # 35
    Part.LineSegment(Vector(-2.6, -3.7, 0), Vector(2.6, -3.7, 0)),  # 36
    Part.LineSegment(Vector(2.6, -3.7, 0), Vector(6, -7.1, 0)),  # 37
    Part.LineSegment(Vector(6, -7.1, 0), Vector(6, -7.9, 0)),  # 38
    Part.ArcOfCircle(Part.Circle(Vector(5.5, -7.9, 0), Vector(0, 0, 1), 0.5), math.radians(-90), math.radians(0)),  # 39
    Part.LineSegment(Vector(5.5, -8.4, 0), Vector(3.1, -8.4, 0)),  # 40
    Part.ArcOfCircle(Part.Circle(Vector(3.1, -8.9, 0), Vector(0, 0, 1), 0.5), math.radians(90), math.radians(180)),  # 41
    Part.LineSegment(Vector(2.6, -8.9, 0), Vector(2.6, -9.5, 0)),  # 42
    Part.ArcOfCircle(Part.Circle(Vector(3.1, -9.5, 0), Vector(0, 0, 1), 0.5), math.radians(-180), math.radians(-90)),  # 43
    Part.LineSegment(Vector(3.1, -10, 0), Vector(9.5, -10, 0)),  # 44
    Part.ArcOfCircle(Part.Circle(Vector(9.5, -9.5, 0), Vector(0, 0, 1), 0.5), math.radians(-90), math.radians(0)),  # 45
    Part.LineSegment(Vector(10, -9.5, 0), Vector(10, -3.1, 0)),  # 46
    Part.ArcOfCircle(Part.Circle(Vector(9.5, -3.1, 0), Vector(0, 0, 1), 0.5), math.radians(0), math.radians(90)),  # 47
    Part.LineSegment(Vector(9.5, -2.6, 0), Vector(8.9, -2.6, 0)),  # 48
    Part.ArcOfCircle(Part.Circle(Vector(8.9, -3.1, 0), Vector(0, 0, 1), 0.5), math.radians(90), math.radians(180)),  # 49
    Part.LineSegment(Vector(8.4, -3.1, 0), Vector(8.4, -5.5, 0)),  # 50
    Part.ArcOfCircle(Part.Circle(Vector(7.9, -5.5, 0), Vector(0, 0, 1), 0.5), math.radians(-90), math.radians(0)),  # 51
    Part.LineSegment(Vector(7.9, -6, 0), Vector(7.1, -6, 0)),  # 52
    Part.LineSegment(Vector(7.1, -6, 0), Vector(3.7, -2.6, 0)),  # 53
    Part.LineSegment(Vector(3.7, -2.6, 0), Vector(3.7, 2.6, 0)),  # 54
    Part.LineSegment(Vector(3.7, 2.6, 0), Vector(7.1, 6, 0)),  # 55
    Part.LineSegment(Vector(7.1, 6, 0), Vector(7.9, 6, 0)),  # 56
    Part.ArcOfCircle(Part.Circle(Vector(7.9, 5.5, 0), Vector(0, 0, 1), 0.5), math.radians(0), math.radians(90)),  # 57
    Part.LineSegment(Vector(8.4, 5.5, 0), Vector(8.4, 3.1, 0)),  # 58
    Part.ArcOfCircle(Part.Circle(Vector(8.9, 3.1, 0), Vector(0, 0, 1), 0.5), math.radians(-180), math.radians(-90)),  # 59
    Part.LineSegment(Vector(8.9, 2.6, 0), Vector(9.5, 2.6, 0)),  # 60
    Part.ArcOfCircle(Part.Circle(Vector(9.5, 3.1, 0), Vector(0, 0, 1), 0.5), math.radians(-90), math.radians(0)),  # 61
    Part.LineSegment(Vector(10, 3.1, 0), Vector(10, 9.5, 0)),  # 62
    Part.ArcOfCircle(Part.Circle(Vector(9.5, 9.5, 0), Vector(0, 0, 1), 0.5), math.radians(0), math.radians(90)),  # 63
    Part.LineSegment(Vector(9.5, 10, 0), Vector(3.1, 10, 0)),  # 64
    Part.ArcOfCircle(Part.Circle(Vector(3.1, 9.5, 0), Vector(0, 0, 1), 0.5), math.radians(90), math.radians(180)),  # 65
    Part.LineSegment(Vector(2.6, 9.5, 0), Vector(2.6, 8.9, 0)),  # 66
    Part.ArcOfCircle(Part.Circle(Vector(3.1, 8.9, 0), Vector(0, 0, 1), 0.5), math.radians(-180), math.radians(-90)),  # 67
    Part.LineSegment(Vector(3.1, 8.4, 0), Vector(5.5, 8.4, 0)),  # 68
    Part.ArcOfCircle(Part.Circle(Vector(5.5, 7.9, 0), Vector(0, 0, 1), 0.5), math.radians(0), math.radians(90)),  # 69
    Part.LineSegment(Vector(6, 7.9, 0), Vector(6, 7.1, 0)),  # 70
    Part.LineSegment(Vector(6, 7.1, 0), Vector(2.6, 3.7, 0)),  # 71
    Part.ArcOfCircle(Part.Circle(Vector(0, 0, 0), Vector(0, 0, 1), 2.1), math.radians(90), math.radians(180)),  # 72
    Part.ArcOfCircle(Part.Circle(Vector(0, 0, 0), Vector(0, 0, 1), 2.1), math.radians(0), math.radians(90)),  # 73
    Part.ArcOfCircle(Part.Circle(Vector(0, 0, 0), Vector(0, 0, 1), 2.1), math.radians(-90), math.radians(0)),  # 74
    Part.ArcOfCircle(Part.Circle(Vector(0, 0, 0), Vector(0, 0, 1), 2.1), math.radians(180), math.radians(270)),  # 75
], False)
sketch2.addConstraint([
    Sketcher.Constraint("Coincident", 0, 2, 1, 1),
    Sketcher.Constraint("Coincident", 1, 2, 2, 1),
    Sketcher.Constraint("Coincident", 2, 2, 3, 2),
    Sketcher.Constraint("Coincident", 3, 1, 4, 1),
    Sketcher.Constraint("Coincident", 4, 2, 5, 1),
    Sketcher.Constraint("Coincident", 5, 2, 6, 1),
    Sketcher.Constraint("Coincident", 6, 2, 7, 1),
    Sketcher.Constraint("Coincident", 7, 2, 8, 1),
    Sketcher.Constraint("Coincident", 8, 2, 9, 1),
    Sketcher.Constraint("Coincident", 9, 2, 10, 1),
    Sketcher.Constraint("Coincident", 10, 2, 11, 1),
    Sketcher.Constraint("Coincident", 11, 2, 12, 1),
    Sketcher.Constraint("Coincident", 12, 2, 13, 1),
    Sketcher.Constraint("Coincident", 13, 2, 14, 1),
    Sketcher.Constraint("Coincident", 14, 2, 15, 2),
    Sketcher.Constraint("Coincident", 15, 1, 16, 1),
    Sketcher.Constraint("Coincident", 16, 2, 17, 1),
    Sketcher.Constraint("Coincident", 17, 2, 18, 1),
    Sketcher.Constraint("Coincident", 18, 2, 19, 1),
    Sketcher.Constraint("Coincident", 19, 2, 20, 1),
    Sketcher.Constraint("Coincident", 20, 2, 21, 2),
    Sketcher.Constraint("Coincident", 21, 1, 22, 1),
    Sketcher.Constraint("Coincident", 22, 2, 23, 1),
    Sketcher.Constraint("Coincident", 23, 2, 24, 1),
    Sketcher.Constraint("Coincident", 24, 2, 25, 1),
    Sketcher.Constraint("Coincident", 25, 2, 26, 1),
    Sketcher.Constraint("Coincident", 26, 2, 27, 1),
    Sketcher.Constraint("Coincident", 27, 2, 28, 1),
    Sketcher.Constraint("Coincident", 28, 2, 29, 1),
    Sketcher.Constraint("Coincident", 29, 2, 30, 1),
    Sketcher.Constraint("Coincident", 30, 2, 31, 1),
    Sketcher.Constraint("Coincident", 31, 2, 32, 1),
    Sketcher.Constraint("Coincident", 32, 2, 33, 2),
    Sketcher.Constraint("Coincident", 33, 1, 34, 1),
    Sketcher.Constraint("Coincident", 34, 2, 35, 1),
    Sketcher.Constraint("Coincident", 35, 2, 36, 1),
    Sketcher.Constraint("Coincident", 36, 2, 37, 1),
    Sketcher.Constraint("Coincident", 37, 2, 38, 1),
    Sketcher.Constraint("Coincident", 38, 2, 39, 2),
    Sketcher.Constraint("Coincident", 39, 1, 40, 1),
    Sketcher.Constraint("Coincident", 40, 2, 41, 1),
    Sketcher.Constraint("Coincident", 41, 2, 42, 1),
    Sketcher.Constraint("Coincident", 42, 2, 43, 1),
    Sketcher.Constraint("Coincident", 43, 2, 44, 1),
    Sketcher.Constraint("Coincident", 44, 2, 45, 1),
    Sketcher.Constraint("Coincident", 45, 2, 46, 1),
    Sketcher.Constraint("Coincident", 46, 2, 47, 1),
    Sketcher.Constraint("Coincident", 47, 2, 48, 1),
    Sketcher.Constraint("Coincident", 48, 2, 49, 1),
    Sketcher.Constraint("Coincident", 49, 2, 50, 1),
    Sketcher.Constraint("Coincident", 50, 2, 51, 2),
    Sketcher.Constraint("Coincident", 51, 1, 52, 1),
    Sketcher.Constraint("Coincident", 52, 2, 53, 1),
    Sketcher.Constraint("Coincident", 53, 2, 54, 1),
    Sketcher.Constraint("Coincident", 54, 2, 55, 1),
    Sketcher.Constraint("Coincident", 55, 2, 56, 1),
    Sketcher.Constraint("Coincident", 56, 2, 57, 2),
    Sketcher.Constraint("Coincident", 57, 1, 58, 1),
    Sketcher.Constraint("Coincident", 58, 2, 59, 1),
    Sketcher.Constraint("Coincident", 59, 2, 60, 1),
    Sketcher.Constraint("Coincident", 60, 2, 61, 1),
    Sketcher.Constraint("Coincident", 61, 2, 62, 1),
    Sketcher.Constraint("Coincident", 62, 2, 63, 1),
    Sketcher.Constraint("Coincident", 63, 2, 64, 1),
    Sketcher.Constraint("Coincident", 64, 2, 65, 1),
    Sketcher.Constraint("Coincident", 65, 2, 66, 1),
    Sketcher.Constraint("Coincident", 66, 2, 67, 1),
    Sketcher.Constraint("Coincident", 67, 2, 68, 1),
    Sketcher.Constraint("Coincident", 68, 2, 69, 2),
    Sketcher.Constraint("Coincident", 69, 1, 70, 1),
    Sketcher.Constraint("Coincident", 70, 2, 71, 1),
    Sketcher.Constraint("Coincident", 71, 2, 0, 1),
    Sketcher.Constraint("Tangent", 72, 1, 73, 2),
    Sketcher.Constraint("Tangent", 73, 1, 74, 2),
    Sketcher.Constraint("Tangent", 74, 1, 75, 2),
    Sketcher.Constraint("Tangent", 75, 1, 72, 2),
    Sketcher.Constraint("Horizontal", 0),
    Sketcher.Constraint("Vertical", 2),
    Sketcher.Constraint("Horizontal", 4),
    Sketcher.Constraint("Vertical", 6),
    Sketcher.Constraint("Horizontal", 8),
    Sketcher.Constraint("Vertical", 10),
    Sketcher.Constraint("Horizontal", 12),
    Sketcher.Constraint("Vertical", 14),
    Sketcher.Constraint("Horizontal", 16),
    Sketcher.Constraint("Vertical", 18),
    Sketcher.Constraint("Horizontal", 20),
    Sketcher.Constraint("Vertical", 22),
    Sketcher.Constraint("Horizontal", 24),
    Sketcher.Constraint("Vertical", 26),
    Sketcher.Constraint("Horizontal", 28),
    Sketcher.Constraint("Vertical", 30),
    Sketcher.Constraint("Horizontal", 32),
    Sketcher.Constraint("Vertical", 34),
    Sketcher.Constraint("Horizontal", 36),
    Sketcher.Constraint("Vertical", 38),
    Sketcher.Constraint("Horizontal", 40),
    Sketcher.Constraint("Vertical", 42),
    Sketcher.Constraint("Horizontal", 44),
    Sketcher.Constraint("Vertical", 46),
    Sketcher.Constraint("Horizontal", 48),
    Sketcher.Constraint("Vertical", 50),
    Sketcher.Constraint("Horizontal", 52),
    Sketcher.Constraint("Vertical", 54),
    Sketcher.Constraint("Horizontal", 56),
    Sketcher.Constraint("Vertical", 58),
    Sketcher.Constraint("Horizontal", 60),
    Sketcher.Constraint("Vertical", 62),
    Sketcher.Constraint("Horizontal", 64),
    Sketcher.Constraint("Vertical", 66),
    Sketcher.Constraint("Horizontal", 68),
    Sketcher.Constraint("Vertical", 70),
    Sketcher.Constraint("Coincident", 72, 3, -1, 1),
    Sketcher.Constraint("Equal", 3, 5),
    Sketcher.Constraint("Equal", 5, 7),
    Sketcher.Constraint("Equal", 7, 9),
    Sketcher.Constraint("Equal", 9, 11),
    Sketcher.Constraint("Equal", 11, 13),
    Sketcher.Constraint("Equal", 13, 15),
    Sketcher.Constraint("Equal", 15, 21),
    Sketcher.Constraint("Equal", 21, 23),
    Sketcher.Constraint("Equal", 23, 25),
    Sketcher.Constraint("Equal", 25, 27),
    Sketcher.Constraint("Equal", 27, 29),
    Sketcher.Constraint("Equal", 29, 31),
    Sketcher.Constraint("Equal", 31, 33),
    Sketcher.Constraint("Equal", 33, 39),
    Sketcher.Constraint("Equal", 39, 41),
    Sketcher.Constraint("Equal", 41, 43),
    Sketcher.Constraint("Equal", 43, 45),
    Sketcher.Constraint("Equal", 45, 47),
    Sketcher.Constraint("Equal", 47, 49),
    Sketcher.Constraint("Equal", 49, 51),
    Sketcher.Constraint("Equal", 51, 57),
    Sketcher.Constraint("Equal", 57, 59),
    Sketcher.Constraint("Equal", 59, 61),
    Sketcher.Constraint("Equal", 61, 63),
    Sketcher.Constraint("Equal", 63, 65),
    Sketcher.Constraint("Equal", 65, 67),
    Sketcher.Constraint("Equal", 67, 69),
    Sketcher.Constraint("Equal", 72, 73),
    Sketcher.Constraint("Symmetric", 3, 3, 39, 3, -1, 1),
    Sketcher.Constraint("Symmetric", 7, 3, 43, 3, -1, 1),
    Sketcher.Constraint("Symmetric", 11, 3, 47, 3, -1, 1),
    Sketcher.Constraint("Symmetric", 15, 3, 51, 3, -1, 1),
    Sketcher.Constraint("Symmetric", 21, 3, 57, 3, -1, 1),
    Sketcher.Constraint("Symmetric", 25, 3, 61, 3, -1, 1),
    Sketcher.Constraint("Symmetric", 29, 3, 65, 3, -1, 1),
    Sketcher.Constraint("Symmetric", 33, 3, 69, 3, -1, 1),
    Sketcher.Constraint("Symmetric", 0, 2, 36, 2, -1, 1),
    Sketcher.Constraint("Symmetric", 17, 2, 53, 2, -1, 1),
    Sketcher.Constraint("Symmetric", 33, 3, 39, 3, -2),
    Sketcher.Constraint("Symmetric", 29, 3, 43, 3, -2),
    Sketcher.Constraint("Symmetric", 25, 3, 47, 3, -2),
    Sketcher.Constraint("Symmetric", 21, 3, 51, 3, -2),
    Sketcher.Constraint("PointOnObject", 72, 1, -2),
    Sketcher.Constraint("PointOnObject", 73, 1, -1),
    Sketcher.Constraint("PointOnObject", 74, 1, -2),
    Sketcher.Constraint("PointOnObject", 75, 1, -1),
    Sketcher.Constraint("Parallel", 1, 17),
    Sketcher.Constraint("Perpendicular", 17, 19),
    Sketcher.Constraint("Parallel", 19, 35),
    Sketcher.Constraint("Perpendicular", 35, 37),
    Sketcher.Constraint("Parallel", 37, 53),
    Sketcher.Constraint("Perpendicular", 53, 55),
    Sketcher.Constraint("Parallel", 55, 71),
    Sketcher.Constraint("Horizontal", 69, 3, 2, 2),
    Sketcher.Constraint("Horizontal", 67, 3, 5, 2),
    Sketcher.Constraint("Horizontal", 65, 3, 6, 2),
    Sketcher.Constraint("Horizontal", 6, 2, 9, 2),
    Sketcher.Constraint("Horizontal", 61, 3, 10, 2),
    Sketcher.Constraint("Horizontal", 10, 2, 13, 2),
    Sketcher.Constraint("Horizontal", 57, 3, 14, 2),
    Sketcher.Constraint("Horizontal", 51, 3, 21, 1),
    Sketcher.Constraint("Horizontal", 49, 3, 22, 2),
    Sketcher.Constraint("Horizontal", 22, 2, 25, 2),
    Sketcher.Constraint("Horizontal", 45, 3, 26, 2),
    Sketcher.Constraint("Horizontal", 26, 2, 29, 2),
    Sketcher.Constraint("Horizontal", 41, 3, 30, 2),
    Sketcher.Constraint("Horizontal", 39, 3, 33, 1),
    Sketcher.Constraint("Horizontal", 34, 2, 37, 2),
    Sketcher.Constraint("Horizontal", 33, 1, 38, 2),
    Sketcher.Constraint("Horizontal", 30, 2, 41, 2),
    Sketcher.Constraint("Horizontal", 29, 2, 42, 2),
    Sketcher.Constraint("Horizontal", 42, 2, 45, 2),
    Sketcher.Constraint("Horizontal", 25, 2, 46, 2),
    Sketcher.Constraint("Horizontal", 46, 2, 49, 2),
    Sketcher.Constraint("Horizontal", 21, 1, 50, 2),
    Sketcher.Constraint("Horizontal", 18, 2, 53, 2),
    Sketcher.Constraint("Horizontal", 17, 2, 54, 2),
    Sketcher.Constraint("Horizontal", 14, 2, 57, 1),
    Sketcher.Constraint("Horizontal", 13, 2, 58, 2),
    Sketcher.Constraint("Horizontal", 58, 2, 61, 2),
    Sketcher.Constraint("Horizontal", 9, 2, 62, 2),
    Sketcher.Constraint("Horizontal", 62, 2, 65, 2),
    Sketcher.Constraint("Horizontal", 5, 2, 66, 2),
    Sketcher.Constraint("Horizontal", 2, 2, 69, 1),
    Sketcher.Constraint("Horizontal", 1, 2, 70, 2),
    Sketcher.Constraint("Vertical", 33, 3, 3, 1),
    Sketcher.Constraint("Vertical", 31, 3, 4, 2),
    Sketcher.Constraint("Vertical", 4, 2, 7, 2),
    Sketcher.Constraint("Vertical", 27, 3, 8, 2),
    Sketcher.Constraint("Vertical", 8, 2, 11, 2),
    Sketcher.Constraint("Vertical", 23, 3, 12, 2),
    Sketcher.Constraint("Vertical", 21, 3, 15, 1),
    Sketcher.Constraint("Vertical", 16, 2, 19, 2),
    Sketcher.Constraint("Vertical", 15, 1, 20, 2),
    Sketcher.Constraint("Vertical", 12, 2, 23, 2),
    Sketcher.Constraint("Vertical", 11, 2, 24, 2),
    Sketcher.Constraint("Vertical", 24, 2, 27, 2),
    Sketcher.Constraint("Vertical", 7, 2, 28, 2),
    Sketcher.Constraint("Vertical", 28, 2, 31, 2),
    Sketcher.Constraint("Vertical", 3, 1, 32, 2),
    Sketcher.Constraint("Vertical", 69, 3, 39, 1),
    Sketcher.Constraint("Vertical", 67, 3, 40, 2),
    Sketcher.Constraint("Vertical", 40, 2, 43, 2),
    Sketcher.Constraint("Vertical", 63, 3, 44, 2),
    Sketcher.Constraint("Vertical", 44, 2, 47, 2),
    Sketcher.Constraint("Vertical", 59, 3, 48, 2),
    Sketcher.Constraint("Vertical", 57, 3, 51, 1),
    Sketcher.Constraint("Vertical", 51, 1, 56, 2),
    Sketcher.Constraint("Vertical", 48, 2, 59, 2),
    Sketcher.Constraint("Vertical", 47, 2, 60, 2),
    Sketcher.Constraint("Vertical", 60, 2, 63, 2),
    Sketcher.Constraint("Vertical", 43, 2, 64, 2),
    Sketcher.Constraint("Vertical", 64, 2, 67, 2),
    Sketcher.Constraint("Vertical", 39, 1, 68, 2),
    Sketcher.Constraint("Equal", 56, 2),
    Sketcher.Constraint("Equal", 60, 6),
    Sketcher.Constraint("Equal", 64, 10),
    Sketcher.Constraint("Equal", 68, 14),
    Sketcher.Constraint("Equal", 36, 18),
    Sketcher.Constraint("Equal", 1, 17),
    Sketcher.Constraint("Radius", 3, 0.500001),
    Sketcher.Constraint("DistanceY", -1, 1, 7, 2, 10.0),
    Sketcher.Constraint("Radius", 72, 2.094999),
    Sketcher.Constraint("DistanceX", 8, 2, 8, 1, 6.37),
    Sketcher.Constraint("DistanceX", 12, 1, 12, 2, 0.64),
    Sketcher.Constraint("DistanceX", 4, 1, 4, 2, 2.365),
    Sketcher.Constraint("DistanceY", -1, 1, 0, 2, 3.66),
    Sketcher.Constraint("DistanceX", 0, 2, 0, 1, 5.19868),
])
pad2 = doc.addObject("PartDesign::Pad", "Pad001")
body2.addObject(pad2)
pad2.Profile = sketch2
pad2.Length = 600

doc.recompute()
